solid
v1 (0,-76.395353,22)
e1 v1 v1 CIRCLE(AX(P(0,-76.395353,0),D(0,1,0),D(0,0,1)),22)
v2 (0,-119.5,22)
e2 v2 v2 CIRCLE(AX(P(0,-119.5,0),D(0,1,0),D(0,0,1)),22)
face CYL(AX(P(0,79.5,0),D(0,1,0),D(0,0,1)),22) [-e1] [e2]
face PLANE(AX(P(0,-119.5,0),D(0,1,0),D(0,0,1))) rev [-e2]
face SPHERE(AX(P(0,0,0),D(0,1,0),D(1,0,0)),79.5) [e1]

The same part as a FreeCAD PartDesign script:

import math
import FreeCAD as App
import Part
import Sketcher

V = App.Vector

doc = App.newDocument("Part")
body = doc.addObject("PartDesign::Body", "Body")

# Sketch on XY plane
sketch1 = doc.addObject("Sketcher::SketchObject", "Sketch")
body.addObject(sketch1)
sketch1.AttachmentSupport = (doc.XY_Plane, [""])
sketch1.MapMode = "FlatFace"
sketch1.addGeometry([
    Part.LineSegment(V(0, 80, 0), V(0, -120, 0)),
    Part.LineSegment(V(0, -120, 0), V(22, -120, 0)),
    Part.LineSegment(V(22, -120, 0), V(22, -76, 0)),
    Part.ArcOfCircle(Part.Circle(V(0, 0, 0), V(0, 0, 1), 80), math.radians(-74), math.radians(90)),
], False)
sketch1.addConstraint([
    Sketcher.Constraint("Coincident", 0, 2, 1, 1),
    Sketcher.Constraint("Coincident", 1, 2, 2, 1),
    Sketcher.Constraint("Coincident", 2, 2, 3, 1),
    Sketcher.Constraint("Coincident", 3, 2, 0, 1),
    Sketcher.Constraint("Vertical", 0),
    Sketcher.Constraint("Horizontal", 1),
    Sketcher.Constraint("Vertical", 2),
    Sketcher.Constraint("Coincident", 3, 3, -1, 1),
    Sketcher.Constraint("PointOnObject", 0, 2, -2),
    Sketcher.Constraint("Radius", 3, 79.5),
    Sketcher.Constraint("DistanceX", 1, 1, 1, 2, 22.0),
    Sketcher.Constraint("DistanceY", 0, 2, 0, 1, 199.0),
])
revolution = doc.addObject("PartDesign::Revolution", "Revolution")
body.addObject(revolution)
revolution.Profile = sketch1
revolution.ReferenceAxis = (sketch1, ["V_Axis"])
revolution.Angle = 360

doc.recompute()
